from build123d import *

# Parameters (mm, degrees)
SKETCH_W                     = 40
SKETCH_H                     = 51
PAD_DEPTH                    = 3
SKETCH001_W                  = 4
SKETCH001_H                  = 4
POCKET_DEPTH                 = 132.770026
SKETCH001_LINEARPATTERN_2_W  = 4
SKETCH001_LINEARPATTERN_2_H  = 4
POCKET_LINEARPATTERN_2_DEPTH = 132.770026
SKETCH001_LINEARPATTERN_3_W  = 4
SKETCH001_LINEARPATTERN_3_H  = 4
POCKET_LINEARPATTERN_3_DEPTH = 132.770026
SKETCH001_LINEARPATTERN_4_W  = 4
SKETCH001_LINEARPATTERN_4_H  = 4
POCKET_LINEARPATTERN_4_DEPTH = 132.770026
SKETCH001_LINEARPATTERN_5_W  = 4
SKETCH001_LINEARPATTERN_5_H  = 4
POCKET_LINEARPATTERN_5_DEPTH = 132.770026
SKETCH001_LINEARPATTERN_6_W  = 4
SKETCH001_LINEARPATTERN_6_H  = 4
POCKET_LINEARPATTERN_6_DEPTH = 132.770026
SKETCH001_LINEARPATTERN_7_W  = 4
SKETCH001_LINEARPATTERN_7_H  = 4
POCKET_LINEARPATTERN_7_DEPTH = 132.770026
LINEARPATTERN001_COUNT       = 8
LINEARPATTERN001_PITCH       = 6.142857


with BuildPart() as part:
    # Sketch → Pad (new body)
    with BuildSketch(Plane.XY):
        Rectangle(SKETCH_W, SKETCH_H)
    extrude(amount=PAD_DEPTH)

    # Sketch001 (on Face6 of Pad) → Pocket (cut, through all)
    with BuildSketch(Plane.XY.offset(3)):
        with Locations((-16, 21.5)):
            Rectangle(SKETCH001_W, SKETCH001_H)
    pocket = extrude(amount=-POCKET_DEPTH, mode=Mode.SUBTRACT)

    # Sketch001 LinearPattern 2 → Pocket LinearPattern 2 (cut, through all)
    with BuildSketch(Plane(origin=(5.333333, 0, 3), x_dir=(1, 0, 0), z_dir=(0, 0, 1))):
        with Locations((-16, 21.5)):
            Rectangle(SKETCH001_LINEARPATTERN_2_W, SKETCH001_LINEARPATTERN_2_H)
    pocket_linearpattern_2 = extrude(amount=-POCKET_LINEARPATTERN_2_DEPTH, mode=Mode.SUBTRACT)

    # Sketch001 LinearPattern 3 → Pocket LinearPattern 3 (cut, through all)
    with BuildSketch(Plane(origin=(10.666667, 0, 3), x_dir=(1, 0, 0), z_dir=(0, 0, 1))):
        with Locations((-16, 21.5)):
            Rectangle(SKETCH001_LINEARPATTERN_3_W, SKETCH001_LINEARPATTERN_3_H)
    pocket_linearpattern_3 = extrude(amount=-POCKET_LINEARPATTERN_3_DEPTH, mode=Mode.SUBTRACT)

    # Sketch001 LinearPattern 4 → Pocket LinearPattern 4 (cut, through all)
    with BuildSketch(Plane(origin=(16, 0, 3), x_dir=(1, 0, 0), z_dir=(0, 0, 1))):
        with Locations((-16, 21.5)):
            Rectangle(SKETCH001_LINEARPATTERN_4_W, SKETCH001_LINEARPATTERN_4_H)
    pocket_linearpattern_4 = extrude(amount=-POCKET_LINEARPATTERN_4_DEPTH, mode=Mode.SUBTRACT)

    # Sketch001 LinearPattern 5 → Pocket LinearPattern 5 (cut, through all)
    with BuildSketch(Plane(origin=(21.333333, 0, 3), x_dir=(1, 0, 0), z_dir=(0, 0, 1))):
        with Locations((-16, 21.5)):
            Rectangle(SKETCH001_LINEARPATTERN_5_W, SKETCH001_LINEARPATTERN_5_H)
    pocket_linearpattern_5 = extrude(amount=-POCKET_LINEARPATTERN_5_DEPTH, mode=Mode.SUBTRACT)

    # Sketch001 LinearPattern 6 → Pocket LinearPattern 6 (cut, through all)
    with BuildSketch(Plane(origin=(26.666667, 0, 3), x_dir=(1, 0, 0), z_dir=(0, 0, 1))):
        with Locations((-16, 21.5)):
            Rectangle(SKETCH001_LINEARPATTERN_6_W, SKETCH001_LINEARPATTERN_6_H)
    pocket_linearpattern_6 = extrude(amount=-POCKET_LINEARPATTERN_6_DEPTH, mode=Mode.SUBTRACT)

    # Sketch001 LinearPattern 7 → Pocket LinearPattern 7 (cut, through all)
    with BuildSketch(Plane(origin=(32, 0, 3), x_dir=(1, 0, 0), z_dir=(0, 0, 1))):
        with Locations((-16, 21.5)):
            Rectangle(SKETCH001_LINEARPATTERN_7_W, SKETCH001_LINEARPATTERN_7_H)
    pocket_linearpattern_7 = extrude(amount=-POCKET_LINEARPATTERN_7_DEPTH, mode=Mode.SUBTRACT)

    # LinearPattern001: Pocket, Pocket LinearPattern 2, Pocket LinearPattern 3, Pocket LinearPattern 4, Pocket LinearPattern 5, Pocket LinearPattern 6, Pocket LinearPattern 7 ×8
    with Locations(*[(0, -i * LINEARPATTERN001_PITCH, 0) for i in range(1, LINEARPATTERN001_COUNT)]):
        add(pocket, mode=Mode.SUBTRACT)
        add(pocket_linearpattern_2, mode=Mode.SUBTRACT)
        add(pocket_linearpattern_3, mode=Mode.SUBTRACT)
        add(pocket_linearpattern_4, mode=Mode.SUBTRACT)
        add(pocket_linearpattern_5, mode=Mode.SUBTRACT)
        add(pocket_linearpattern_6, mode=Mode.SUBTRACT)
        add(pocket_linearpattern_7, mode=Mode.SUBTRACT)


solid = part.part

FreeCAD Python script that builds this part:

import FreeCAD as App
import Part
import Sketcher
Q = App.Units.Quantity


def add_polygon(sketch, points):
    """Adds a closed chain of lines whose ends are joined by coincident constraints."""
    first, n = sketch.GeometryCount, len(points)
    for a, b in zip(points, points[1:] + points[:1]):
        sketch.addGeometry(Part.LineSegment(App.Vector(*a, 0), App.Vector(*b, 0)), False)
    for i in range(n):
        sketch.addConstraint(Sketcher.Constraint("Coincident", first + i, 2, first + (i + 1) % n, 1))

doc = App.newDocument("Part")
body = doc.addObject("PartDesign::Body", "Body")

# Sketch on XY plane
sketch1 = doc.addObject("Sketcher::SketchObject", "Sketch")
body.addObject(sketch1)
sketch1.AttachmentSupport = (doc.XY_Plane, [""])
sketch1.MapMode = "FlatFace"
add_polygon(sketch1, [(-20, 26), (-20, -26), (20, -26), (20, 26)])  # lines 0-3
sketch1.addConstraint([
    Sketcher.Constraint("Vertical", 0),
    Sketcher.Constraint("Horizontal", 1),
    Sketcher.Constraint("Vertical", 2),
    Sketcher.Constraint("Horizontal", 3),
    Sketcher.Constraint("Symmetric", 0, 2, 2, 2, -1, 1),
    Sketcher.Constraint("DistanceX", 1, 1, 1, 2, Q("40 mm")),
    Sketcher.Constraint("DistanceY", 0, 2, 0, 1, Q("51 mm")),
])
pad1 = doc.addObject("PartDesign::Pad", "Pad")
body.addObject(pad1)
pad1.Profile = sketch1
pad1.Length = 3

# Sketch on XY plane
sketch2 = doc.addObject("Sketcher::SketchObject", "Sketch001")
body.addObject(sketch2)
sketch2.AttachmentSupport = (doc.XY_Plane, [""])
sketch2.MapMode = "FlatFace"
sketch2.AttachmentOffset = App.Placement(App.Vector(0, 0, 3), App.Rotation())
add_polygon(sketch2, [(-18, 23.5), (-18, 19.5), (-14, 19.5), (-14, 23.5)])  # lines 0-3
sketch2.addConstraint([
    Sketcher.Constraint("Vertical", 0),
    Sketcher.Constraint("Horizontal", 1),
    Sketcher.Constraint("Vertical", 2),
    Sketcher.Constraint("Horizontal", 3),
    Sketcher.Constraint("Equal", 3, 0),
    Sketcher.Constraint("DistanceX", 1, 1, 1, 2, Q("4 mm")),
    Sketcher.Constraint("DistanceX", 0, 2, -1, 1, Q("18 mm")),
    Sketcher.Constraint("DistanceY", -1, 1, 0, 2, Q("19.5 mm")),
])
pocket1 = doc.addObject("PartDesign::Pocket", "Pocket")
body.addObject(pocket1)
pocket1.Profile = sketch2
pocket1.Type = "ThroughAll"

# Sketch on XY plane
sketch3 = doc.addObject("Sketcher::SketchObject", "Sketch002")
body.addObject(sketch3)
sketch3.AttachmentSupport = (doc.XY_Plane, [""])
sketch3.MapMode = "FlatFace"
sketch3.AttachmentOffset = App.Placement(App.Vector(0, 0, 3), App.Rotation())
add_polygon(sketch3, [(-12.7, 23.5), (-12.7, 19.5), (-8.7, 19.5), (-8.7, 23.5)])  # lines 0-3
sketch3.addConstraint([
    Sketcher.Constraint("Vertical", 0),
    Sketcher.Constraint("Horizontal", 1),
    Sketcher.Constraint("Vertical", 2),
    Sketcher.Constraint("Horizontal", 3),
    Sketcher.Constraint("Equal", 3, 0),
    Sketcher.Constraint("DistanceX", 1, 1, 1, 2, Q("4 mm")),
    Sketcher.Constraint("DistanceY", -1, 1, 0, 2, Q("19.5 mm")),
    Sketcher.Constraint("DistanceX", 0, 2, -1, 1, Q("12.666667 mm")),
])
pocket2 = doc.addObject("PartDesign::Pocket", "Pocket001")
body.addObject(pocket2)
pocket2.Profile = sketch3
pocket2.Type = "ThroughAll"

# Sketch on XY plane
sketch4 = doc.addObject("Sketcher::SketchObject", "Sketch003")
body.addObject(sketch4)
sketch4.AttachmentSupport = (doc.XY_Plane, [""])
sketch4.MapMode = "FlatFace"
sketch4.AttachmentOffset = App.Placement(App.Vector(0, 0, 3), App.Rotation())
add_polygon(sketch4, [(-7.3, 23.5), (-7.3, 19.5), (-3.3, 19.5), (-3.3, 23.5)])  # lines 0-3
sketch4.addConstraint([
    Sketcher.Constraint("Vertical", 0),
    Sketcher.Constraint("Horizontal", 1),
    Sketcher.Constraint("Vertical", 2),
    Sketcher.Constraint("Horizontal", 3),
    Sketcher.Constraint("Equal", 3, 0),
    Sketcher.Constraint("DistanceX", 1, 1, 1, 2, Q("4 mm")),
    Sketcher.Constraint("DistanceY", -1, 1, 0, 2, Q("19.5 mm")),
    Sketcher.Constraint("DistanceX", 0, 2, -1, 1, Q("7.333333 mm")),
])
pocket3 = doc.addObject("PartDesign::Pocket", "Pocket002")
body.addObject(pocket3)
pocket3.Profile = sketch4
pocket3.Type = "ThroughAll"

# Sketch on XY plane
sketch5 = doc.addObject("Sketcher::SketchObject", "Sketch004")
body.addObject(sketch5)
sketch5.AttachmentSupport = (doc.XY_Plane, [""])
sketch5.MapMode = "FlatFace"
sketch5.AttachmentOffset = App.Placement(App.Vector(0, 0, 3), App.Rotation())
add_polygon(sketch5, [(-2, 23.5), (-2, 19.5), (2, 19.5), (2, 23.5)])  # lines 0-3
sketch5.addConstraint([
    Sketcher.Constraint("Vertical", 0),
    Sketcher.Constraint("Horizontal", 1),
    Sketcher.Constraint("Vertical", 2),
    Sketcher.Constraint("Horizontal", 3),
    Sketcher.Constraint("Equal", 3, 0),
    Sketcher.Constraint("DistanceX", 1, 1, 1, 2, Q("4 mm")),
    Sketcher.Constraint("DistanceX", 0, 2, -1, 1, Q("2 mm")),
    Sketcher.Constraint("DistanceY", -1, 1, 0, 2, Q("19.5 mm")),
])
pocket4 = doc.addObject("PartDesign::Pocket", "Pocket003")
body.addObject(pocket4)
pocket4.Profile = sketch5
pocket4.Type = "ThroughAll"

# Sketch on XY plane
sketch6 = doc.addObject("Sketcher::SketchObject", "Sketch005")
body.addObject(sketch6)
sketch6.AttachmentSupport = (doc.XY_Plane, [""])
sketch6.MapMode = "FlatFace"
sketch6.AttachmentOffset = App.Placement(App.Vector(0, 0, 3), App.Rotation())
add_polygon(sketch6, [(3.3, 23.5), (3.3, 19.5), (7.3, 19.5), (7.3, 23.5)])  # lines 0-3
sketch6.addConstraint([
    Sketcher.Constraint("Vertical", 0),
    Sketcher.Constraint("Horizontal", 1),
    Sketcher.Constraint("Vertical", 2),
    Sketcher.Constraint("Horizontal", 3),
    Sketcher.Constraint("Equal", 3, 0),
    Sketcher.Constraint("DistanceX", 1, 1, 1, 2, Q("4 mm")),
    Sketcher.Constraint("DistanceY", -1, 1, 0, 2, Q("19.5 mm")),
    Sketcher.Constraint("DistanceX", -1, 1, 0, 2, Q("3.333333 mm")),
])
pocket5 = doc.addObject("PartDesign::Pocket", "Pocket004")
body.addObject(pocket5)
pocket5.Profile = sketch6
pocket5.Type = "ThroughAll"

# Sketch on XY plane
sketch7 = doc.addObject("Sketcher::SketchObject", "Sketch006")
body.addObject(sketch7)
sketch7.AttachmentSupport = (doc.XY_Plane, [""])
sketch7.MapMode = "FlatFace"
sketch7.AttachmentOffset = App.Placement(App.Vector(0, 0, 3), App.Rotation())
add_polygon(sketch7, [(8.7, 23.5), (8.7, 19.5), (12.7, 19.5), (12.7, 23.5)])  # lines 0-3
sketch7.addConstraint([
    Sketcher.Constraint("Vertical", 0),
    Sketcher.Constraint("Horizontal", 1),
    Sketcher.Constraint("Vertical", 2),
    Sketcher.Constraint("Horizontal", 3),
    Sketcher.Constraint("Equal", 3, 0),
    Sketcher.Constraint("DistanceX", 1, 1, 1, 2, Q("4 mm")),
    Sketcher.Constraint("DistanceY", -1, 1, 0, 2, Q("19.5 mm")),
    Sketcher.Constraint("DistanceX", -1, 1, 0, 2, Q("8.666667 mm")),
])
pocket6 = doc.addObject("PartDesign::Pocket", "Pocket005")
body.addObject(pocket6)
pocket6.Profile = sketch7
pocket6.Type = "ThroughAll"

# Sketch on XY plane
sketch8 = doc.addObject("Sketcher::SketchObject", "Sketch007")
body.addObject(sketch8)
sketch8.AttachmentSupport = (doc.XY_Plane, [""])
sketch8.MapMode = "FlatFace"
sketch8.AttachmentOffset = App.Placement(App.Vector(0, 0, 3), App.Rotation())
add_polygon(sketch8, [(14, 23.5), (14, 19.5), (18, 19.5), (18, 23.5)])  # lines 0-3
sketch8.addConstraint([
    Sketcher.Constraint("Vertical", 0),
    Sketcher.Constraint("Horizontal", 1),
    Sketcher.Constraint("Vertical", 2),
    Sketcher.Constraint("Horizontal", 3),
    Sketcher.Constraint("Equal", 3, 0),
    Sketcher.Constraint("DistanceX", 1, 1, 1, 2, Q("4 mm")),
    Sketcher.Constraint("DistanceX", -1, 1, 0, 2, Q("14 mm")),
    Sketcher.Constraint("DistanceY", -1, 1, 0, 2, Q("19.5 mm")),
])
pocket7 = doc.addObject("PartDesign::Pocket", "Pocket006")
body.addObject(pocket7)
pocket7.Profile = sketch8
pocket7.Type = "ThroughAll"
doc.recompute()

linearpattern = doc.addObject("PartDesign::LinearPattern", "LinearPattern")
body.addObject(linearpattern)
linearpattern.Originals = [pocket1, pocket2, pocket3, pocket4, pocket5, pocket6, pocket7]
linearpattern.Direction = (doc.Y_Axis, [""])
linearpattern.Mode = "offset"
linearpattern.Offset = 6.142857
linearpattern.Occurrences = 8
linearpattern.Reversed = True
body.Tip = linearpattern

doc.recompute()
